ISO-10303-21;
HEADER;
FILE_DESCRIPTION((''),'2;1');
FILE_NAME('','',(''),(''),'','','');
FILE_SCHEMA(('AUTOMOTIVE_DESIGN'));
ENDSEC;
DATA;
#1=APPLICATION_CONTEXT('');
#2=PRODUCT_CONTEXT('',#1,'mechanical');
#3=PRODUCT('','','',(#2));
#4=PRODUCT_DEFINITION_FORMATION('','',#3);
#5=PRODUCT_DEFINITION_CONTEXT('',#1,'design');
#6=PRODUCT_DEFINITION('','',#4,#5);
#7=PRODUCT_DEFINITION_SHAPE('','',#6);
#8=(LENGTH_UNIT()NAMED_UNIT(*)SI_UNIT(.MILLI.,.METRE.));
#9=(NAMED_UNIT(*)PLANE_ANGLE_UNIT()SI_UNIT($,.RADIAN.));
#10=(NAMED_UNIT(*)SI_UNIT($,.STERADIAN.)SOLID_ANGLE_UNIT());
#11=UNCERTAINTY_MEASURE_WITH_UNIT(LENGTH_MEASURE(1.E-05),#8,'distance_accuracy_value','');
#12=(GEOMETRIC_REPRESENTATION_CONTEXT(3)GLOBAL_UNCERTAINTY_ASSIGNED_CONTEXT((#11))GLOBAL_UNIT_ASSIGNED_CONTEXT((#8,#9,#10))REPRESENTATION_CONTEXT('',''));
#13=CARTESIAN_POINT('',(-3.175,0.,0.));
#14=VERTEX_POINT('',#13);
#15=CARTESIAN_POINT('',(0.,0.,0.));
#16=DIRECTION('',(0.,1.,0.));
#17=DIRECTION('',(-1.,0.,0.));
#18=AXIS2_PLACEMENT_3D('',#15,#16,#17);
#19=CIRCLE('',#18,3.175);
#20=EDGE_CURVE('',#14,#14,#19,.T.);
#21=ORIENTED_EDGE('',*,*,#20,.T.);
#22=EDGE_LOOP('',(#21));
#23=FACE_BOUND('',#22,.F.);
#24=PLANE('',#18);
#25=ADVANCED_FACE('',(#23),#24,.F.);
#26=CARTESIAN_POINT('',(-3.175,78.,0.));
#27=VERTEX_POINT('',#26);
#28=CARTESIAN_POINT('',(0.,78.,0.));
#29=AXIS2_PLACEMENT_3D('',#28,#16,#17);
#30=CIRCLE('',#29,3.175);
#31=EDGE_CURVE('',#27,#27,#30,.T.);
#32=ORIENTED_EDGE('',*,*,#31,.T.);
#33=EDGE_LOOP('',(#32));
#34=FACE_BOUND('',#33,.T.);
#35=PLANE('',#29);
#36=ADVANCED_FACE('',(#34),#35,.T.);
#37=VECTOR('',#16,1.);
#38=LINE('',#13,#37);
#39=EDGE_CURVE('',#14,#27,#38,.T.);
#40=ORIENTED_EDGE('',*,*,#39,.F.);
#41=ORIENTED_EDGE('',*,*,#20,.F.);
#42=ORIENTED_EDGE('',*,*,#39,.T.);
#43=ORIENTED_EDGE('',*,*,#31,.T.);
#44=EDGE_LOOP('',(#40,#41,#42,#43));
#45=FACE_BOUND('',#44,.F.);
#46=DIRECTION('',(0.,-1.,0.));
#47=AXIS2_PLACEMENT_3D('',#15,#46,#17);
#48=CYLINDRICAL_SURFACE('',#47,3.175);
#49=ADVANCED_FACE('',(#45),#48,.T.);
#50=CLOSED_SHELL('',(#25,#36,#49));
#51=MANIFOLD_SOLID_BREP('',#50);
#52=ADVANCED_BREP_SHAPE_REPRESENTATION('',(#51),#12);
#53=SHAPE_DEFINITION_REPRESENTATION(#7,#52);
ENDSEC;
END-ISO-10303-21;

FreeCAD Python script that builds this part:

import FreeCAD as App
import Part
import Sketcher
from FreeCAD import Vector
Q = App.Units.Quantity

doc = App.newDocument("Part")
body = doc.addObject("PartDesign::Body", "Body")

# Sketch on XZ plane
sketch1 = body.newObject("Sketcher::SketchObject", "Sketch")
sketch1.AttachmentSupport = (doc.getObject("XZ_Plane"), [""])
sketch1.MapMode = "FlatFace"
sketch1.addGeometry(Part.Circle(Vector(0, 0, 0), Vector(0, 0, 1), 3.175), False)
sketch1.addConstraint(Sketcher.Constraint("Coincident", 0, 3, -1, 1))
sketch1.addConstraint(Sketcher.Constraint("Diameter", 0, Q("6.35 mm")))
pad1 = body.newObject("PartDesign::Pad", "Pad")
pad1.Profile = sketch1
pad1.Length = 78
pad1.Reversed = True

doc.recompute()
